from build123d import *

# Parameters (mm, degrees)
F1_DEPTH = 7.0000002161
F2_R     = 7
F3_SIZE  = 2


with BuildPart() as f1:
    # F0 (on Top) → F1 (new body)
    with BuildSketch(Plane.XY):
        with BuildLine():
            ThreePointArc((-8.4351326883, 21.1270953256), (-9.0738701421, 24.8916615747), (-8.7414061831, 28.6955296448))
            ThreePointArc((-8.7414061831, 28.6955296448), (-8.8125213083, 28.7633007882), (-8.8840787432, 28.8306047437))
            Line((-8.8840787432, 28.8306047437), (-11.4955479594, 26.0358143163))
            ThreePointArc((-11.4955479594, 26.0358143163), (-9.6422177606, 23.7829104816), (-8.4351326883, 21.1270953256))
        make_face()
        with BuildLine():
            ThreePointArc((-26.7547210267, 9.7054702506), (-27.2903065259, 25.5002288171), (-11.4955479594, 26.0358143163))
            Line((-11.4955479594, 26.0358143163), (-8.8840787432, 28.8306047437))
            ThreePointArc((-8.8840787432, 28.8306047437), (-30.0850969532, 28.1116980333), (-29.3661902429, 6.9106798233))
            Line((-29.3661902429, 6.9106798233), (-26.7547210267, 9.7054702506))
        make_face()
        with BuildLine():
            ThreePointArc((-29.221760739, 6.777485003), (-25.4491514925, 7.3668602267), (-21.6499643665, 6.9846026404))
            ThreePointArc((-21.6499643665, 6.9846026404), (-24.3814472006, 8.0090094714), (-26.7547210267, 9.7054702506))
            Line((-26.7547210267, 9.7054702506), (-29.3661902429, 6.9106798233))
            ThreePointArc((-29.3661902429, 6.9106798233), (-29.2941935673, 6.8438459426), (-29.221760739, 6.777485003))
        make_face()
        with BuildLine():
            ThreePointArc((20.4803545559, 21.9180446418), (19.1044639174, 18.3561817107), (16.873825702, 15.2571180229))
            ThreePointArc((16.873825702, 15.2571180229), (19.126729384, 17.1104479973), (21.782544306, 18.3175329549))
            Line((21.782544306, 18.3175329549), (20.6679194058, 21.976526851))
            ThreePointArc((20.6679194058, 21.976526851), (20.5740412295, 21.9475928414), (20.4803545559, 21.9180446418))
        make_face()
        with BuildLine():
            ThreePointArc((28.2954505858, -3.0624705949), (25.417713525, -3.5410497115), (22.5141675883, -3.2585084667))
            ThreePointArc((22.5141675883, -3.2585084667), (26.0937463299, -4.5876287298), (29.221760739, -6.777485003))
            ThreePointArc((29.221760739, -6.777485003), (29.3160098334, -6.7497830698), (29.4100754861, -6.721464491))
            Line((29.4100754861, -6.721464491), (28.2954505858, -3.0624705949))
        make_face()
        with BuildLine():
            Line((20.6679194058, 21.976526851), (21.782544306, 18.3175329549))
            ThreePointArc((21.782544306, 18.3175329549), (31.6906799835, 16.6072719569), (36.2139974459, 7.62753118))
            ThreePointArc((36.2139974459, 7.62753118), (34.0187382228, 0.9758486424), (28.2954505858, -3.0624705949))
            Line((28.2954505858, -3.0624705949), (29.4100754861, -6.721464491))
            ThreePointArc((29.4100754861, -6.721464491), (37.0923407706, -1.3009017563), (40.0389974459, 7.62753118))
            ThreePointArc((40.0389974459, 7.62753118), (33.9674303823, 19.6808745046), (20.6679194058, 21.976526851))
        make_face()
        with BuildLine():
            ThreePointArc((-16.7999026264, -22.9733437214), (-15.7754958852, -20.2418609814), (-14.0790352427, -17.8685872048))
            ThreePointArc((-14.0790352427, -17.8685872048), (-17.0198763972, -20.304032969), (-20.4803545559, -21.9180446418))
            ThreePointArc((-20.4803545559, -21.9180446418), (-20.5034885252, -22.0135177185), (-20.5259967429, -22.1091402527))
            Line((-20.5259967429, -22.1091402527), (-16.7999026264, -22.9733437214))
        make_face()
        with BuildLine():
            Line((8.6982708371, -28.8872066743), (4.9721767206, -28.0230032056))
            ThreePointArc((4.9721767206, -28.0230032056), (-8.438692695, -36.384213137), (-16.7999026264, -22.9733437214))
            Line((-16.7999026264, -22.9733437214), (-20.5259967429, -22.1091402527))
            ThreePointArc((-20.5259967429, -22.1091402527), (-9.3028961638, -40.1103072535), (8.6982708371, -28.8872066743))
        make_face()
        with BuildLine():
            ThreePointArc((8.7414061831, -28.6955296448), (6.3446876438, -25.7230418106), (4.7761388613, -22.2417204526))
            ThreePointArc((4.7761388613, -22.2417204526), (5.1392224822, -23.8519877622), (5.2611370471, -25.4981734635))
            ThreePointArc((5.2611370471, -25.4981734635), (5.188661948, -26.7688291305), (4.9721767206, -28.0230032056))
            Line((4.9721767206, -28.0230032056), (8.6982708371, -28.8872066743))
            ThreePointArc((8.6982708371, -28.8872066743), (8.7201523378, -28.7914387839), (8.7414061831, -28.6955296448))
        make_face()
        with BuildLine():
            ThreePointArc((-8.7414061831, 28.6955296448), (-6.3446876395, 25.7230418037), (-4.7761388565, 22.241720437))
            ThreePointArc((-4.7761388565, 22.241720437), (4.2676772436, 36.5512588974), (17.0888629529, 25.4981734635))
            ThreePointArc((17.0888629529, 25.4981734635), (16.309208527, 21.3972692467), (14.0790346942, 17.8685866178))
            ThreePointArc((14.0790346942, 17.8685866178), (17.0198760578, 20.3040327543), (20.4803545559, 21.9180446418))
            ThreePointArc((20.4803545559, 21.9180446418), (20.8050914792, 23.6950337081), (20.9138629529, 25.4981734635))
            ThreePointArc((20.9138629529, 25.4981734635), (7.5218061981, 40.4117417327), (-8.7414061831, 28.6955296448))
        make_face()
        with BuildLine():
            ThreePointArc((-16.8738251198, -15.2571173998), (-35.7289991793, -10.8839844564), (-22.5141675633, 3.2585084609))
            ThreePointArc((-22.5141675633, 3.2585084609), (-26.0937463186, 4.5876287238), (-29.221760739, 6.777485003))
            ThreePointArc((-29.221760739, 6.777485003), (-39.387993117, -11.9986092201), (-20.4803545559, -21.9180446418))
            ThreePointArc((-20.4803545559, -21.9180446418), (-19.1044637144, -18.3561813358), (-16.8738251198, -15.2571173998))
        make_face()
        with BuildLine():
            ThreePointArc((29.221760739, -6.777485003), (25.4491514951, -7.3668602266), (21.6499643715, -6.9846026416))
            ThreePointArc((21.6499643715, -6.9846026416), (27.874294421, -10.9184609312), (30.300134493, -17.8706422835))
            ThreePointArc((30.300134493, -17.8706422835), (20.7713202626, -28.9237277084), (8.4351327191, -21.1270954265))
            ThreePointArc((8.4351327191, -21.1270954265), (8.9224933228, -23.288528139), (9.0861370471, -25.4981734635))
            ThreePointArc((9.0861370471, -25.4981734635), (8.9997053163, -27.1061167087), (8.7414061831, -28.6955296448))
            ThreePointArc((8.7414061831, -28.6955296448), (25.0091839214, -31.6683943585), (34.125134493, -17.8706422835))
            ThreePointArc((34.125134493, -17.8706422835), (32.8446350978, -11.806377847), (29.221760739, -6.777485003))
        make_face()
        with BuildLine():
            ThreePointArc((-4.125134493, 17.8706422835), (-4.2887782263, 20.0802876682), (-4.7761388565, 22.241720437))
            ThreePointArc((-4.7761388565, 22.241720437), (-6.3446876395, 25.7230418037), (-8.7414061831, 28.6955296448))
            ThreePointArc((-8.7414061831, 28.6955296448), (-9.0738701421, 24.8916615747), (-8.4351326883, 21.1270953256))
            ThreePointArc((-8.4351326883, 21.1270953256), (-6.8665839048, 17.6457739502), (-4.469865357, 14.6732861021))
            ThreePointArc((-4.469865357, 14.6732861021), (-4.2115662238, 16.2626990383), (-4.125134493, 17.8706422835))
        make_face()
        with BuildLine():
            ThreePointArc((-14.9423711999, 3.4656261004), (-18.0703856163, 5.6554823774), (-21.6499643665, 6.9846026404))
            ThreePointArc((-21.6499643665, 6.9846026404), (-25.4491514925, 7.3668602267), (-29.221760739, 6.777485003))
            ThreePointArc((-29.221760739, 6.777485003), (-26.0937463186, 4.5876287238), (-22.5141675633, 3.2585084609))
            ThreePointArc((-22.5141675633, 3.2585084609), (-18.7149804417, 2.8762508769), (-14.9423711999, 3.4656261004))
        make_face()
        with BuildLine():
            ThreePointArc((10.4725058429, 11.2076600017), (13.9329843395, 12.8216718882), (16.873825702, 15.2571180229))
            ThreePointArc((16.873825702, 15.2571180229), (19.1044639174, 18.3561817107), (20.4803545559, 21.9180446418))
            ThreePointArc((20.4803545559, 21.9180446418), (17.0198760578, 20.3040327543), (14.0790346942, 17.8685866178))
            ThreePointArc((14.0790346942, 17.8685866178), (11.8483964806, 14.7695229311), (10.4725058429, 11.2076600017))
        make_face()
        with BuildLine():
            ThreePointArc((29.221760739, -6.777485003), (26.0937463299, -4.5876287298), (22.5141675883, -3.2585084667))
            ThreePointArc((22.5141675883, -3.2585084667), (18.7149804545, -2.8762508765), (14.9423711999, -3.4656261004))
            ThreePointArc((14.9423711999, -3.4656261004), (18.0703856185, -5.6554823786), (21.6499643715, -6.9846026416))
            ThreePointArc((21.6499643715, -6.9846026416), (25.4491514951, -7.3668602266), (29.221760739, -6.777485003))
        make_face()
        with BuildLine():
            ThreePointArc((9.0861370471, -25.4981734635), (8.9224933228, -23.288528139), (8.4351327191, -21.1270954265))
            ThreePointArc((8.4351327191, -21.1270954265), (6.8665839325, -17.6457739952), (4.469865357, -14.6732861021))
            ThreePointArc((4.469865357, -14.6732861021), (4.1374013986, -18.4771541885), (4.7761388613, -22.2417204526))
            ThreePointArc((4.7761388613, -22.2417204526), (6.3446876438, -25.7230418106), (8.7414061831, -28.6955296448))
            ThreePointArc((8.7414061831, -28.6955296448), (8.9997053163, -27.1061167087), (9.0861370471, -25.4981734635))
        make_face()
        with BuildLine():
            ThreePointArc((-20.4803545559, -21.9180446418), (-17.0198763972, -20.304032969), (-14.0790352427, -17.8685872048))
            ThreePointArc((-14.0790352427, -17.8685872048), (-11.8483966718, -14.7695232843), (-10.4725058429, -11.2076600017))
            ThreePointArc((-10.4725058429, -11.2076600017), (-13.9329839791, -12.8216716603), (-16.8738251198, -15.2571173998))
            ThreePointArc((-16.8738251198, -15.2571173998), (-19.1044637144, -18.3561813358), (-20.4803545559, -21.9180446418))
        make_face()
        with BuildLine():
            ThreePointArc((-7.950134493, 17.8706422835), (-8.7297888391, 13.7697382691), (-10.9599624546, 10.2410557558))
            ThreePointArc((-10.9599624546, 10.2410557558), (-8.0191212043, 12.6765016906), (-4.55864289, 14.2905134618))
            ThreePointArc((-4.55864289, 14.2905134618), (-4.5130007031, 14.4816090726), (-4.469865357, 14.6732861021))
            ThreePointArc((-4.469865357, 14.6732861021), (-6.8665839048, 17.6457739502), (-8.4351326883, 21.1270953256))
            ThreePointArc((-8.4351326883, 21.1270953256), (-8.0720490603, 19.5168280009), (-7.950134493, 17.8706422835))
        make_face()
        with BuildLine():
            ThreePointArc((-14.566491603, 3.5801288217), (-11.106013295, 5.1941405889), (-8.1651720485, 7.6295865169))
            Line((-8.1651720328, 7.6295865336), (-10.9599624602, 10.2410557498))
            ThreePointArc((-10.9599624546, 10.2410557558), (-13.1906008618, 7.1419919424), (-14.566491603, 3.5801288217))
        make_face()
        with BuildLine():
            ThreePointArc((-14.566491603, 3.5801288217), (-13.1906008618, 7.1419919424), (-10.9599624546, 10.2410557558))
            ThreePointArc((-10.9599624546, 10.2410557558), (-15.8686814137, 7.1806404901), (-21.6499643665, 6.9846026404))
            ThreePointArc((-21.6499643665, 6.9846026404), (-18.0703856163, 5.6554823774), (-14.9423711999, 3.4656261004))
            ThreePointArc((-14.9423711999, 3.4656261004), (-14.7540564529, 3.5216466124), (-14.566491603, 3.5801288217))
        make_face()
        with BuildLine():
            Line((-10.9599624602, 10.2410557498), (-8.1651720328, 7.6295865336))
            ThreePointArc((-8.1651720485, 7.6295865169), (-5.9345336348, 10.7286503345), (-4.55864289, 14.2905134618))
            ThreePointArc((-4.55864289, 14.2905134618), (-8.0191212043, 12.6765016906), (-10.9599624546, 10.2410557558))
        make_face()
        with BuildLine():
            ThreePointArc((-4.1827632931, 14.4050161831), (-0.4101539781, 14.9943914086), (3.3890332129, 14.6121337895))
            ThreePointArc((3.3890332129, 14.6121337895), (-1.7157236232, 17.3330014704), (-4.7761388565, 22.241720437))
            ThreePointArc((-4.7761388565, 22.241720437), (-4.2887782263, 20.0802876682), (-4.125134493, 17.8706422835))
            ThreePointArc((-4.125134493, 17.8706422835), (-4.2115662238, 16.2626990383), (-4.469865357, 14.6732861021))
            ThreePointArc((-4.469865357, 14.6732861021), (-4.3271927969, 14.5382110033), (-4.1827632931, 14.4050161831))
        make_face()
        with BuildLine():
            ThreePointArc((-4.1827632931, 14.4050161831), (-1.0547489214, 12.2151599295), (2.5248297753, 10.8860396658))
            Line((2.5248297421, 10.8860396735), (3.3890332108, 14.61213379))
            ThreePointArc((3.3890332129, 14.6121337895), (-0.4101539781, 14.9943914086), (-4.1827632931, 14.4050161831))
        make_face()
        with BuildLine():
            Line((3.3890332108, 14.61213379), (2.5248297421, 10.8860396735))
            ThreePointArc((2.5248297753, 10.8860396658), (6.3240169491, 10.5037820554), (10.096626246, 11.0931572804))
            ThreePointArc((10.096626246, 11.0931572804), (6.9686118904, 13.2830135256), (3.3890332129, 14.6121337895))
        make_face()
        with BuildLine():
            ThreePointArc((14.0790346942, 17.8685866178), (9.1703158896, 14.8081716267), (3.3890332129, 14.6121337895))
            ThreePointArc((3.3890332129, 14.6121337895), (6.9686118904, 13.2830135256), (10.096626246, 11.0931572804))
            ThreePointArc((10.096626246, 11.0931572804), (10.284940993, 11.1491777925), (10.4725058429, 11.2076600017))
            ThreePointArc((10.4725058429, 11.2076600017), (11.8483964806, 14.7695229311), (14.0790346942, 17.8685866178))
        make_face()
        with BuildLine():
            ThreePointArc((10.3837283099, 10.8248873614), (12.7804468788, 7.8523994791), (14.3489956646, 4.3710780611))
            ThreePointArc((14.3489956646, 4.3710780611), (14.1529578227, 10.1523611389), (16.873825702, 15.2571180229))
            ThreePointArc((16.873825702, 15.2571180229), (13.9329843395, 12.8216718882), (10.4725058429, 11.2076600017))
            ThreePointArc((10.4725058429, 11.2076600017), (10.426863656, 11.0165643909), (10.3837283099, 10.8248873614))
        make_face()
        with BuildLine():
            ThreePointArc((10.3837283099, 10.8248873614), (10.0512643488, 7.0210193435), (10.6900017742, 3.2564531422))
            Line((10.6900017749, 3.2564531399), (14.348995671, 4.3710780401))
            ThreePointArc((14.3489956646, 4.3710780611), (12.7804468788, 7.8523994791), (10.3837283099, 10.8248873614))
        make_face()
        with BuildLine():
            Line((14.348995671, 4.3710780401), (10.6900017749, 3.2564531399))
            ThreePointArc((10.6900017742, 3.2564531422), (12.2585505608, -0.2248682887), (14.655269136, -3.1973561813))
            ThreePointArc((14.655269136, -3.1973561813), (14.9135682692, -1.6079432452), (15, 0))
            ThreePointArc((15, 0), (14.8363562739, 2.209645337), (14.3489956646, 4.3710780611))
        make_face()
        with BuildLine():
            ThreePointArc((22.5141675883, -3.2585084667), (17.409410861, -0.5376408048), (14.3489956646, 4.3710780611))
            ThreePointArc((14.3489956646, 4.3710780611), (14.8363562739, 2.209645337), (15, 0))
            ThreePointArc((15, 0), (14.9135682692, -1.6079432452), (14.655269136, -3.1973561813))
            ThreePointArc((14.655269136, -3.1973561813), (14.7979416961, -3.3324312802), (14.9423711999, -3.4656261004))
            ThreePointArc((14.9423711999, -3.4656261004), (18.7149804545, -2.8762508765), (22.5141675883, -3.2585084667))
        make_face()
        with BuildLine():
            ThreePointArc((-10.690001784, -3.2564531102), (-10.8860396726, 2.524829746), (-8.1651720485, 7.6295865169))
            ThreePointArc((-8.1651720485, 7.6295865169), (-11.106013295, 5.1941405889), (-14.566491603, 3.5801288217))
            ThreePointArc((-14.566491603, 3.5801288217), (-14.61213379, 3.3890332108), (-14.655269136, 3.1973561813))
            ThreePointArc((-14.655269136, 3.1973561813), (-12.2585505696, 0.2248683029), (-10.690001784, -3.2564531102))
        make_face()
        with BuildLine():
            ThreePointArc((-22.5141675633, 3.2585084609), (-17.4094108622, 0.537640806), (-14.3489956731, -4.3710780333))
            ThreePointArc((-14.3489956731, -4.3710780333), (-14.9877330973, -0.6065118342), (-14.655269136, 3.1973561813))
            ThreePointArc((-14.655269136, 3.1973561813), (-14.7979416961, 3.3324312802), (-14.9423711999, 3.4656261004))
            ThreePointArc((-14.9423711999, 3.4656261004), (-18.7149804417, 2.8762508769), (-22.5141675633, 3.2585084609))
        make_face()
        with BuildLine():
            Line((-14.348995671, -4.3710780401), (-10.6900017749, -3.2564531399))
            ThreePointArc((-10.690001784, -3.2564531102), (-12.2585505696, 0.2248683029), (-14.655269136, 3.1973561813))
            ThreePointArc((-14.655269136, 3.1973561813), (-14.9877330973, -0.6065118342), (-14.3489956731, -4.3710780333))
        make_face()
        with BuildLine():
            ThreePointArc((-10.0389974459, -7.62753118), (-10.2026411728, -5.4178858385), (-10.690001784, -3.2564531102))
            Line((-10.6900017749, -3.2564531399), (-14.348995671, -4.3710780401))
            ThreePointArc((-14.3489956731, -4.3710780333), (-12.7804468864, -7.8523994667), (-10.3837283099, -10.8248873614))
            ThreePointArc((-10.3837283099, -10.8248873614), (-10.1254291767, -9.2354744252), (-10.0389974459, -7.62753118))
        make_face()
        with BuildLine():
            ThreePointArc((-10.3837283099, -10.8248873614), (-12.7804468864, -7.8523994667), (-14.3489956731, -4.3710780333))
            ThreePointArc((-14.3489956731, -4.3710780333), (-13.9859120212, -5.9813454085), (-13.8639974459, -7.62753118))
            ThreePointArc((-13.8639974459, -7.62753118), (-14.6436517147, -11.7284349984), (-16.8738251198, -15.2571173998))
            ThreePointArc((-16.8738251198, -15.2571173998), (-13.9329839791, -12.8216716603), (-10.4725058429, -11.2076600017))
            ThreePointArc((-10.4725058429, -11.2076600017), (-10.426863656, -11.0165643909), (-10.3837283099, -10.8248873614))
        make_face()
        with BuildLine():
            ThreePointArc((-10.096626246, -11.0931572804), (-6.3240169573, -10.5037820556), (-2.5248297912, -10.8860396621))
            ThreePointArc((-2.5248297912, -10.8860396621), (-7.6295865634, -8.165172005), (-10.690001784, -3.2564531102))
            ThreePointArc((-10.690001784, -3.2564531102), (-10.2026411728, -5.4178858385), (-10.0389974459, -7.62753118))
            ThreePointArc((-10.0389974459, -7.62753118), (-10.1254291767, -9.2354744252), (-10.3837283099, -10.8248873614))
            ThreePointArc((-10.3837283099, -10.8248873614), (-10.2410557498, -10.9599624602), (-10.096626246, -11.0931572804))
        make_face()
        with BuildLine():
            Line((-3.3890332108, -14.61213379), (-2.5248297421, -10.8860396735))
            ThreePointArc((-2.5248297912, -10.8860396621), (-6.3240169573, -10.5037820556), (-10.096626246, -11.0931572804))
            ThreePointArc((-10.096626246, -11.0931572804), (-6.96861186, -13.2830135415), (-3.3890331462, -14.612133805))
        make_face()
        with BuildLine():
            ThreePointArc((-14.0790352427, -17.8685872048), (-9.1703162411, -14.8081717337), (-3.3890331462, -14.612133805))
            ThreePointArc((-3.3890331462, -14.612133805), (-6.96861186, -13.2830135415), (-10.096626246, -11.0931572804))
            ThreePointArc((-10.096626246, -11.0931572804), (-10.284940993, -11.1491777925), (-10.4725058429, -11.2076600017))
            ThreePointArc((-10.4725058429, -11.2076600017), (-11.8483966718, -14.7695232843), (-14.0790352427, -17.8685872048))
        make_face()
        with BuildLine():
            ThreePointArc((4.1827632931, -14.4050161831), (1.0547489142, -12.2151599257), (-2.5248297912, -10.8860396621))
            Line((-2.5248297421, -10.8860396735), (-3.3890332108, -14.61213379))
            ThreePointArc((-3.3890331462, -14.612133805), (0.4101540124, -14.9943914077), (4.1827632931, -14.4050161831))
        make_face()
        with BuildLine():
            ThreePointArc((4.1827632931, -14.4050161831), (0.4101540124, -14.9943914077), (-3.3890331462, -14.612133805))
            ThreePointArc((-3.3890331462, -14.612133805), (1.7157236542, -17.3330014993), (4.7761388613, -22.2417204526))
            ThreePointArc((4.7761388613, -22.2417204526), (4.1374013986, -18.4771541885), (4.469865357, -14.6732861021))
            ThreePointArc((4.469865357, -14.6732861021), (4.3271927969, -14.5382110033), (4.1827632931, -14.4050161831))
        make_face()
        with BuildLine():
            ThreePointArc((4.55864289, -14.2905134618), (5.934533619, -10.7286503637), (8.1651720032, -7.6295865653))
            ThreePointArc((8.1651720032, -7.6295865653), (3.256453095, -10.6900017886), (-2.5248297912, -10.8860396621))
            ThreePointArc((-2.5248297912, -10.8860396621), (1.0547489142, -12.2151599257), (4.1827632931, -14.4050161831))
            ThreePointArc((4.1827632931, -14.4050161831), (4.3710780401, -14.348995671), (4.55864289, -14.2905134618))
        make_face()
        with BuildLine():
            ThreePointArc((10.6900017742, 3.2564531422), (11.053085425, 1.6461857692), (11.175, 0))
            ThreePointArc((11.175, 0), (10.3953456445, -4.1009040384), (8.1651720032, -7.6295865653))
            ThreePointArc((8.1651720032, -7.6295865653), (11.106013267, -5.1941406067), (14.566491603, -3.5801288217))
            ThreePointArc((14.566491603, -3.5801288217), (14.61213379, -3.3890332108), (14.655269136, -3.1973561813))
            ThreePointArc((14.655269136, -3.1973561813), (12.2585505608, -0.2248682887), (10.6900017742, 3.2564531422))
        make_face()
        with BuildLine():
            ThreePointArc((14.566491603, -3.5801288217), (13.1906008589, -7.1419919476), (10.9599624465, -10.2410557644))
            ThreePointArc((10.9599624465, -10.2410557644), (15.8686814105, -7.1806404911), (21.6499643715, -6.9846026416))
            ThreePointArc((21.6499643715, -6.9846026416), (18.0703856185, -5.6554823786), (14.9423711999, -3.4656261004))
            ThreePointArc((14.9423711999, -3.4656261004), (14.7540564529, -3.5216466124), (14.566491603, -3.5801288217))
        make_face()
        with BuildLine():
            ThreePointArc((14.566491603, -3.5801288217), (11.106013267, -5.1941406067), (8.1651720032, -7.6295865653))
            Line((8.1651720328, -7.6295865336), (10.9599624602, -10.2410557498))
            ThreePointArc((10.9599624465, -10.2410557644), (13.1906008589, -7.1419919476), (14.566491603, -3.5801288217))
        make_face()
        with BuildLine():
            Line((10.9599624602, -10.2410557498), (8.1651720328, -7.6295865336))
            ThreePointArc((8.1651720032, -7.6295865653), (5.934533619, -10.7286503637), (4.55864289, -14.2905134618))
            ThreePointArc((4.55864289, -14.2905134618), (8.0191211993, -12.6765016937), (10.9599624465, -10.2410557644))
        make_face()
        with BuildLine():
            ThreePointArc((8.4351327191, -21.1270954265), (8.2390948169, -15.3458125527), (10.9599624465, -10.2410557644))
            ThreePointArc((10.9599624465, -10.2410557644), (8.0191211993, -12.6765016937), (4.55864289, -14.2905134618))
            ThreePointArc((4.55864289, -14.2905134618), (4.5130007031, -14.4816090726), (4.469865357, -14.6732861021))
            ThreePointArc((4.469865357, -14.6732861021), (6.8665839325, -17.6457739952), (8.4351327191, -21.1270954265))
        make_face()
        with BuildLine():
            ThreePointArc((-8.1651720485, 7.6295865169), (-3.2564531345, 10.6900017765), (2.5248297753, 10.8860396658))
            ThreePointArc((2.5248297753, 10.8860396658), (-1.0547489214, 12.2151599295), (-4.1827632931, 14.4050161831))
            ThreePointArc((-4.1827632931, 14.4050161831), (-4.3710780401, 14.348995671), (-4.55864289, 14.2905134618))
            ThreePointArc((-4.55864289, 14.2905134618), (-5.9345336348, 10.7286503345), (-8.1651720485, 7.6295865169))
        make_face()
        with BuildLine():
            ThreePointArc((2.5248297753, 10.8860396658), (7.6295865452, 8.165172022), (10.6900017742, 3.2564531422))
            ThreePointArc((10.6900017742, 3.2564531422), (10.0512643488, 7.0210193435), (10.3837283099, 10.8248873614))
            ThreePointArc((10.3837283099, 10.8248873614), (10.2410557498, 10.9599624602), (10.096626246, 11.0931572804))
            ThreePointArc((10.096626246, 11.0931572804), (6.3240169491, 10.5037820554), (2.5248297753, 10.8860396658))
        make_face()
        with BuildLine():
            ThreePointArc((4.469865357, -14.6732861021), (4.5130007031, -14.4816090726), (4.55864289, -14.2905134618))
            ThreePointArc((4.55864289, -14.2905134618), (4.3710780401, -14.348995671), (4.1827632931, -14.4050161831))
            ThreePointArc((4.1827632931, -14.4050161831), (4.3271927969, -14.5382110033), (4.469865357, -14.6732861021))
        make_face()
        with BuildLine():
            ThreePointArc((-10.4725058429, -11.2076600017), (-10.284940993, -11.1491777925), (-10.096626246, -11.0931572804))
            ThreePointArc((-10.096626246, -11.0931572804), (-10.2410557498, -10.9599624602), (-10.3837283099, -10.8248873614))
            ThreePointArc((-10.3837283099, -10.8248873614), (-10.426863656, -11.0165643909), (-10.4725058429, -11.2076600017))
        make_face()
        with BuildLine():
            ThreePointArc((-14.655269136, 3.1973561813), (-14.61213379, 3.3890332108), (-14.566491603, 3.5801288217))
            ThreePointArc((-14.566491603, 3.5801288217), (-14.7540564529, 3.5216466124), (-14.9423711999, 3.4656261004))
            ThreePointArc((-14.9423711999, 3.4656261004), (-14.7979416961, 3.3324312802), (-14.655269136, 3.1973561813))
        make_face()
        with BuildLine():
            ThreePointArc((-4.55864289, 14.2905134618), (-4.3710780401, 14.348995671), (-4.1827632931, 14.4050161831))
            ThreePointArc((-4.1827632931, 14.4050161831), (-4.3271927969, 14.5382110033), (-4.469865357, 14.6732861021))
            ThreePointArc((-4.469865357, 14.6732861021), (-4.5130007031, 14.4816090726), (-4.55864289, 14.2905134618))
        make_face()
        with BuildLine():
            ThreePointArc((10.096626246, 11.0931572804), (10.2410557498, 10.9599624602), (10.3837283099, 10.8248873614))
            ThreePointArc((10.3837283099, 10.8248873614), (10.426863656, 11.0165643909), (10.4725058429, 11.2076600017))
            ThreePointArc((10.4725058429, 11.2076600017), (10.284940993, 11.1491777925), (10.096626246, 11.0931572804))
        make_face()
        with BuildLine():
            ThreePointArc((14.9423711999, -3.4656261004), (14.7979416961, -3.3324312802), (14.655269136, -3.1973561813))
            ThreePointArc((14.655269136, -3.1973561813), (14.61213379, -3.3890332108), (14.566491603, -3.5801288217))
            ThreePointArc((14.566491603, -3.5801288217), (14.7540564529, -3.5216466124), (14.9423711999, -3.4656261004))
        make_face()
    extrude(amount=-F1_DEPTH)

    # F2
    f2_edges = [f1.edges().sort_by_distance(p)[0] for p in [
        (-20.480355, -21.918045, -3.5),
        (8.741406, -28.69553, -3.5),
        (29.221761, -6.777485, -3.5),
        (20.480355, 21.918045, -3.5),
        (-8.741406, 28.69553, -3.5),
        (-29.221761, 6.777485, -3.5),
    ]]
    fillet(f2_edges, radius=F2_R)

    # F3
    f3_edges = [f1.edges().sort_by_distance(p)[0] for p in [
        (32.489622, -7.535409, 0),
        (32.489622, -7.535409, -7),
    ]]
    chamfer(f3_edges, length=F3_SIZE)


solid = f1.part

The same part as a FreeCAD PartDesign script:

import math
import FreeCAD as App
import Part
import Sketcher
Q = App.Units.Quantity


def edges_at(feature, points):
    """Names of the edges that pass closest to the given points."""
    edges = feature.Shape.Edges
    near = lambda p: min(range(len(edges)), key=lambda i: edges[i].distToShape(Part.Vertex(*p))[0])
    return sorted({f"Edge{near(p) + 1}" for p in points})

doc = App.newDocument("Part")
body = doc.addObject("PartDesign::Body", "Body")

sketch1 = doc.addObject("Sketcher::SketchObject", "Sketch")
body.addObject(sketch1)
sketch1.AttachmentSupport = (doc.XY_Plane, [""])
sketch1.MapMode = "FlatFace"
sketch1.addGeometry([
    Part.ArcOfCircle(Part.Circle(App.Vector(-25.038997, -7.627531, 0), App.Vector(0, 0, 1), 15), math.radians(106.191634), math.radians(287.69257)),
    Part.ArcOfCircle(Part.Circle(App.Vector(-5.913864, -25.498173, 0), App.Vector(0, 0, 1), 14.999999), math.radians(166.191634), math.radians(166.942102)),
    Part.ArcOfCircle(Part.Circle(App.Vector(-5.913863, -25.498173, 0), App.Vector(0, 0, 1), 15), math.radians(166.942102), math.radians(346.942102)),
    Part.ArcOfCircle(Part.Circle(App.Vector(-5.913864, -25.498173, 0), App.Vector(0, 0, 1), 15.000001), math.radians(-13.057898), math.radians(-12.30743)),
    Part.ArcOfCircle(Part.Circle(App.Vector(19.125134, -17.870642, 0), App.Vector(0, 0, 1), 15), math.radians(-133.808366), math.radians(0)),
    Part.ArcOfCircle(Part.Circle(App.Vector(19.125134, -17.870642, 0), App.Vector(0, 0, 1), 15), math.radians(0), math.radians(47.69257)),
    Part.ArcOfCircle(Part.Circle(App.Vector(25.038998, 7.62753, 0), App.Vector(0, 0, 1), 14.999998), math.radians(-73.808366), math.radians(-73.057898)),
    Part.ArcOfCircle(Part.Circle(App.Vector(25.038997, 7.627531, 0), App.Vector(0, 0, 1), 15), math.radians(-73.057898), math.radians(0)),
    Part.ArcOfCircle(Part.Circle(App.Vector(25.038997, 7.627531, 0), App.Vector(0, 0, 1), 15), math.radians(0), math.radians(106.942102)),
    Part.ArcOfCircle(Part.Circle(App.Vector(25.038997, 7.627533, 0), App.Vector(0, 0, 1), 14.999999), math.radians(106.942102), math.radians(107.69257)),
    Part.ArcOfCircle(Part.Circle(App.Vector(5.913863, 25.498173, 0), App.Vector(0, 0, 1), 15), math.radians(-13.808366), math.radians(0)),
    Part.ArcOfCircle(Part.Circle(App.Vector(5.913863, 25.498173, 0), App.Vector(0, 0, 1), 15), math.radians(0), math.radians(167.69257)),
    Part.ArcOfCircle(Part.Circle(App.Vector(-19.125136, 17.87064, 0), App.Vector(0, 0, 1), 15.000003), math.radians(46.191634), math.radians(46.942102)),
    Part.ArcOfCircle(Part.Circle(App.Vector(-19.125134, 17.870642, 0), App.Vector(0, 0, 1), 15), math.radians(46.942102), math.radians(226.942102)),
    Part.ArcOfCircle(Part.Circle(App.Vector(-19.125133, 17.870644, 0), App.Vector(0, 0, 1), 15.000002), math.radians(-133.057898), math.radians(-132.30743)),
    Part.ArcOfCircle(Part.Circle(App.Vector(-5.913863, -25.498173, 0), App.Vector(0, 0, 1), 11.175), math.radians(0), math.radians(16.942101)),
    Part.ArcOfCircle(Part.Circle(App.Vector(-5.913863, -25.498173, 0), App.Vector(0, 0, 1), 11.175), math.radians(-13.057898), math.radians(0)),
    Part.ArcOfCircle(Part.Circle(App.Vector(-5.913863, -25.498173, 0), App.Vector(0, 0, 1), 11.175), math.radians(166.942102), math.radians(346.942102)),
    Part.ArcOfCircle(Part.Circle(App.Vector(-5.913863, -25.498173, 0), App.Vector(0, 0, 1), 11.175), math.radians(136.942104), math.radians(166.942102)),
    Part.ArcOfCircle(Part.Circle(App.Vector(-5.913863, -25.498173, 0), App.Vector(0, 0, 1), 11.175), math.radians(76.942102), math.radians(136.942104)),
    Part.ArcOfCircle(Part.Circle(App.Vector(-5.913863, -25.498173, 0), App.Vector(0, 0, 1), 11.175), math.radians(16.942102), math.radians(76.942102)),
    Part.ArcOfCircle(Part.Circle(App.Vector(-25.038997, -7.627531, 0), App.Vector(0, 0, 1), 11.175), math.radians(16.942102), math.radians(316.942104)),
    Part.ArcOfCircle(Part.Circle(App.Vector(-25.038997, -7.627531, 0), App.Vector(0, 0, 1), 11.175), math.radians(0), math.radians(16.942102)),
    Part.ArcOfCircle(Part.Circle(App.Vector(-25.038997, -7.627531, 0), App.Vector(0, 0, 1), 11.175), math.radians(-43.057896), math.radians(0)),
    Part.ArcOfCircle(Part.Circle(App.Vector(19.125134, -17.870642, 0), App.Vector(0, 0, 1), 11.175), math.radians(0), math.radians(136.942102)),
    Part.ArcOfCircle(Part.Circle(App.Vector(19.125134, -17.870642, 0), App.Vector(0, 0, 1), 11.175), math.radians(-163.057898), math.radians(0)),
    Part.ArcOfCircle(Part.Circle(App.Vector(19.125134, -17.870642, 0), App.Vector(0, 0, 1), 11.175), math.radians(136.942102), math.radians(196.942102)),
    Part.ArcOfCircle(Part.Circle(App.Vector(-19.125134, 17.870642, 0), App.Vector(0, 0, 1), 11.175), math.radians(-43.057898), math.radians(0)),
    Part.ArcOfCircle(Part.Circle(App.Vector(-19.125134, 17.870642, 0), App.Vector(0, 0, 1), 11.175), math.radians(-103.057898), math.radians(-43.057898)),
    Part.ArcOfCircle(Part.Circle(App.Vector(-19.125134, 17.870642, 0), App.Vector(0, 0, 1), 11.175), math.radians(-133.057898), math.radians(-103.057898)),
    Part.ArcOfCircle(Part.Circle(App.Vector(-19.125134, 17.870642, 0), App.Vector(0, 0, 1), 11.175), math.radians(46.942102), math.radians(226.942102)),
    Part.ArcOfCircle(Part.Circle(App.Vector(-19.125134, 17.870642, 0), App.Vector(0, 0, 1), 11.175), math.radians(16.942102), math.radians(46.942102)),
    Part.ArcOfCircle(Part.Circle(App.Vector(-19.125134, 17.870642, 0), App.Vector(0, 0, 1), 11.175), math.radians(0), math.radians(16.942102)),
    Part.ArcOfCircle(Part.Circle(App.Vector(0, 0, 0), App.Vector(0, 0, 1), 11.175), math.radians(-43.057898), math.radians(0)),
    Part.ArcOfCircle(Part.Circle(App.Vector(0, 0, 0), App.Vector(0, 0, 1), 11.175), math.radians(-103.057898), math.radians(-43.057898)),
    Part.ArcOfCircle(Part.Circle(App.Vector(0, 0, 0), App.Vector(0, 0, 1), 11.175), math.radians(-163.057898), math.radians(-103.057898)),
    Part.ArcOfCircle(Part.Circle(App.Vector(0, 0, 0), App.Vector(0, 0, 1), 11.175), math.radians(136.942102), math.radians(196.942102)),
    Part.ArcOfCircle(Part.Circle(App.Vector(0, 0, 0), App.Vector(0, 0, 1), 11.175), math.radians(76.942102), math.radians(136.942102)),
    Part.ArcOfCircle(Part.Circle(App.Vector(0, 0, 0), App.Vector(0, 0, 1), 11.175), math.radians(16.942102), math.radians(76.942102)),
    Part.ArcOfCircle(Part.Circle(App.Vector(0, 0, 0), App.Vector(0, 0, 1), 11.175), math.radians(0), math.radians(16.942102)),
    Part.ArcOfCircle(Part.Circle(App.Vector(25.038997, 7.627531, 0), App.Vector(0, 0, 1), 11.175), math.radians(136.9421), math.radians(196.942102)),
    Part.ArcOfCircle(Part.Circle(App.Vector(25.038997, 7.627531, 0), App.Vector(0, 0, 1), 11.175), math.radians(0), math.radians(136.9421)),
    Part.ArcOfCircle(Part.Circle(App.Vector(25.038997, 7.627531, 0), App.Vector(0, 0, 1), 11.175), math.radians(-73.057898), math.radians(0)),
    Part.ArcOfCircle(Part.Circle(App.Vector(25.038997, 7.627531, 0), App.Vector(0, 0, 1), 11.175), math.radians(-103.057898), math.radians(-73.057898)),
    Part.ArcOfCircle(Part.Circle(App.Vector(25.038997, 7.627531, 0), App.Vector(0, 0, 1), 11.175), math.radians(-163.057898), math.radians(-103.057898)),
    Part.ArcOfCircle(Part.Circle(App.Vector(5.913863, 25.498173, 0), App.Vector(0, 0, 1), 11.175), math.radians(-163.057898), math.radians(-103.057898)),
    Part.ArcOfCircle(Part.Circle(App.Vector(5.913863, 25.498173, 0), App.Vector(0, 0, 1), 11.175), math.radians(-43.0579), math.radians(196.942102)),
    Part.ArcOfCircle(Part.Circle(App.Vector(5.913863, 25.498173, 0), App.Vector(0, 0, 1), 11.175), math.radians(-103.057898), math.radians(-43.0579)),
], False)
sketch1.addConstraint([
    Sketcher.Constraint("Coincident", 0, 2, 1, 1),
    Sketcher.Constraint("Tangent", 1, 2, 2, 1),
    Sketcher.Constraint("Tangent", 2, 2, 3, 1),
    Sketcher.Constraint("Coincident", 3, 2, 4, 1),
    Sketcher.Constraint("Tangent", 4, 2, 5, 1),
    Sketcher.Constraint("Coincident", 5, 2, 6, 1),
    Sketcher.Constraint("Tangent", 6, 2, 7, 1),
    Sketcher.Constraint("Tangent", 7, 2, 8, 1),
    Sketcher.Constraint("Tangent", 8, 2, 9, 1),
    Sketcher.Constraint("Coincident", 9, 2, 10, 1),
    Sketcher.Constraint("Tangent", 10, 2, 11, 1),
    Sketcher.Constraint("Coincident", 11, 2, 12, 1),
    Sketcher.Constraint("Tangent", 12, 2, 13, 1),
    Sketcher.Constraint("Tangent", 13, 2, 14, 1),
    Sketcher.Constraint("Coincident", 14, 2, 0, 1),
    Sketcher.Constraint("Tangent", 15, 1, 16, 2),
    Sketcher.Constraint("Tangent", 16, 1, 17, 2),
    Sketcher.Constraint("Tangent", 17, 1, 18, 2),
    Sketcher.Constraint("Tangent", 18, 1, 19, 2),
    Sketcher.Constraint("Tangent", 19, 1, 20, 2),
    Sketcher.Constraint("Tangent", 20, 1, 15, 2),
    Sketcher.Constraint("Tangent", 21, 1, 22, 2),
    Sketcher.Constraint("Tangent", 22, 1, 23, 2),
    Sketcher.Constraint("Tangent", 23, 1, 21, 2),
    Sketcher.Constraint("Tangent", 24, 1, 25, 2),
    Sketcher.Constraint("Tangent", 25, 1, 26, 2),
    Sketcher.Constraint("Tangent", 26, 1, 24, 2),
    Sketcher.Constraint("Tangent", 27, 1, 28, 2),
    Sketcher.Constraint("Tangent", 28, 1, 29, 2),
    Sketcher.Constraint("Tangent", 29, 1, 30, 2),
    Sketcher.Constraint("Tangent", 30, 1, 31, 2),
    Sketcher.Constraint("Tangent", 31, 1, 32, 2),
    Sketcher.Constraint("Tangent", 32, 1, 27, 2),
    Sketcher.Constraint("Tangent", 33, 1, 34, 2),
    Sketcher.Constraint("Tangent", 34, 1, 35, 2),
    Sketcher.Constraint("Tangent", 35, 1, 36, 2),
    Sketcher.Constraint("Tangent", 36, 1, 37, 2),
    Sketcher.Constraint("Tangent", 37, 1, 38, 2),
    Sketcher.Constraint("Tangent", 38, 1, 39, 2),
    Sketcher.Constraint("Tangent", 39, 1, 33, 2),
    Sketcher.Constraint("Tangent", 40, 1, 41, 2),
    Sketcher.Constraint("Tangent", 41, 1, 42, 2),
    Sketcher.Constraint("Tangent", 42, 1, 43, 2),
    Sketcher.Constraint("Tangent", 43, 1, 44, 2),
    Sketcher.Constraint("Tangent", 44, 1, 40, 2),
    Sketcher.Constraint("Tangent", 45, 1, 46, 2),
    Sketcher.Constraint("Tangent", 46, 1, 47, 2),
    Sketcher.Constraint("Tangent", 47, 1, 45, 2),
    Sketcher.Constraint("Coincident", 33, 3, -1, 1),
    Sketcher.Constraint("Coincident", 35, 3, -1, 1),
    Sketcher.Constraint("Coincident", 37, 3, -1, 1),
    Sketcher.Constraint("Coincident", 8, 3, 6, 3),
    Sketcher.Constraint("Coincident", 15, 3, 1, 3),
    Sketcher.Constraint("Coincident", 17, 3, 1, 3),
    Sketcher.Constraint("Coincident", 21, 3, 0, 3),
    Sketcher.Constraint("Coincident", 24, 3, 4, 3),
    Sketcher.Constraint("Coincident", 27, 3, 12, 3),
    Sketcher.Constraint("Coincident", 29, 3, 12, 3),
    Sketcher.Constraint("Coincident", 40, 3, 6, 3),
    Sketcher.Constraint("Coincident", 42, 3, 6, 3),
    Sketcher.Constraint("Coincident", 45, 3, 10, 3),
    Sketcher.Constraint("Equal", 0, 1),
    Sketcher.Constraint("Equal", 1, 2),
    Sketcher.Constraint("Equal", 2, 3),
    Sketcher.Constraint("Equal", 3, 4),
    Sketcher.Constraint("Equal", 4, 5),
    Sketcher.Constraint("Equal", 5, 6),
    Sketcher.Constraint("Equal", 8, 9),
    Sketcher.Constraint("Equal", 9, 10),
    Sketcher.Constraint("Equal", 10, 11),
    Sketcher.Constraint("Equal", 3, 12),
    Sketcher.Constraint("Equal", 11, 13),
    Sketcher.Constraint("Equal", 13, 14),
    Sketcher.Constraint("Equal", 17, 18),
    Sketcher.Constraint("Equal", 20, 21),
    Sketcher.Constraint("Equal", 23, 24),
    Sketcher.Constraint("Equal", 26, 27),
    Sketcher.Constraint("Equal", 29, 30),
    Sketcher.Constraint("Equal", 32, 33),
    Sketcher.Constraint("Equal", 39, 40),
    Sketcher.Constraint("Equal", 44, 45),
    Sketcher.Constraint("Symmetric", 0, 3, 6, 3, -1, 1),
    Sketcher.Constraint("Symmetric", 1, 3, 10, 3, -1, 1),
    Sketcher.Constraint("Symmetric", 4, 3, 12, 3, -1, 1),
    Sketcher.Constraint("PointOnObject", 39, 1, -1),
    Sketcher.Constraint("Horizontal", 26, 3, 4, 2),
    Sketcher.Constraint("Horizontal", 44, 3, 7, 2),
    Sketcher.Constraint("Horizontal", 47, 3, 10, 2),
    Sketcher.Constraint("Horizontal", 20, 3, 15, 1),
    Sketcher.Constraint("Horizontal", 23, 3, 22, 1),
    Sketcher.Constraint("Horizontal", 4, 2, 24, 1),
    Sketcher.Constraint("Horizontal", 31, 3, 32, 1),
    Sketcher.Constraint("Horizontal", 7, 2, 41, 1),
    Sketcher.Constraint("Radius", 0, Q("15 mm")),
    Sketcher.Constraint("Radius", 15, Q("11.175 mm")),
    Sketcher.Constraint("DistanceX", 35, 1, -1, 1, Q("10.690002 mm")),
    Sketcher.Constraint("DistanceX", -1, 1, 38, 1, Q("10.690002 mm")),
    Sketcher.Constraint("DistanceY", 0, 3, -1, 1, Q("7.627531 mm")),
    Sketcher.Constraint("DistanceY", -1, 1, 12, 3, Q("17.87064 mm")),
    Sketcher.Constraint("DistanceY", 1, 2, -1, 1, Q("22.10914 mm")),
    Sketcher.Constraint("DistanceX", -1, 1, 2, 2, Q("8.698271 mm")),
    Sketcher.Constraint("DistanceY", 3, 2, -1, 1, Q("28.69553 mm")),
    Sketcher.Constraint("DistanceX", -1, 1, 5, 2, Q("29.221761 mm")),
    Sketcher.Constraint("DistanceX", -1, 1, 8, 2, Q("20.667919 mm")),
    Sketcher.Constraint("DistanceX", 12, 2, -1, 1, Q("8.884079 mm")),
    Sketcher.Constraint("DistanceX", 13, 2, -1, 1, Q("29.36619 mm")),
    Sketcher.Constraint("DistanceY", -1, 1, 13, 2, Q("6.91068 mm")),
    Sketcher.Constraint("DistanceX", -1, 1, 20, 1, Q("4.776139 mm")),
    Sketcher.Constraint("DistanceY", 20, 1, -1, 1, Q("22.24172 mm")),
    Sketcher.Constraint("DistanceY", 21, 1, -1, 1, Q("4.371078 mm")),
    Sketcher.Constraint("DistanceX", 29, 1, -1, 1, Q("26.754721 mm")),
    Sketcher.Constraint("DistanceX", 34, 1, -1, 1, Q("2.52483 mm")),
    Sketcher.Constraint("DistanceX", -1, 1, 37, 1, Q("2.52483 mm")),
    Sketcher.Constraint("DistanceY", -1, 1, 40, 1, Q("15.257118 mm")),
    Sketcher.Constraint("DistanceX", -1, 1, 42, 1, Q("28.295451 mm")),
    Sketcher.Constraint("DistanceY", 43, 1, -1, 1, Q("3.258508 mm")),
    Sketcher.Constraint("DistanceY", -1, 1, 44, 1, Q("4.371078 mm")),
    Sketcher.Constraint("DistanceX", 45, 1, -1, 1, Q("4.776139 mm")),
    Sketcher.Constraint("DistanceX", -1, 1, 6, 2, Q("29.410075 mm")),
    Sketcher.Constraint("DistanceX", -1, 1, 16, 1, Q("4.972177 mm")),
    Sketcher.Constraint("DistanceX", 17, 1, -1, 1, Q("16.799903 mm")),
    Sketcher.Constraint("DistanceX", 18, 1, -1, 1, Q("14.079035 mm")),
    Sketcher.Constraint("DistanceX", 19, 1, -1, 1, Q("3.389033 mm")),
    Sketcher.Constraint("DistanceX", 23, 1, -1, 1, Q("16.873825 mm")),
    Sketcher.Constraint("DistanceX", -1, 1, 25, 1, Q("8.435133 mm")),
    Sketcher.Constraint("DistanceX", -1, 1, 26, 1, Q("10.959962 mm")),
    Sketcher.Constraint("DistanceX", 27, 1, -1, 1, Q("10.959962 mm")),
    Sketcher.Constraint("DistanceX", 28, 1, -1, 1, Q("21.649964 mm")),
    Sketcher.Constraint("DistanceX", 30, 1, -1, 1, Q("11.495548 mm")),
    Sketcher.Constraint("DistanceX", 31, 1, -1, 1, Q("8.435133 mm")),
    Sketcher.Constraint("DistanceX", -1, 1, 33, 1, Q("8.165172 mm")),
    Sketcher.Constraint("DistanceX", 36, 1, -1, 1, Q("8.165172 mm")),
    Sketcher.Constraint("DistanceX", -1, 1, 46, 1, Q("14.079035 mm")),
    Sketcher.Constraint("DistanceX", -1, 1, 47, 1, Q("3.389033 mm")),
])
pad1 = doc.addObject("PartDesign::Pad", "Pad")
body.addObject(pad1)
pad1.Profile = sketch1
pad1.Length = 7
pad1.Reversed = True
doc.recompute()

fillet = doc.addObject("PartDesign::Fillet", "Fillet")
body.addObject(fillet)
fillet.Base = (pad1, edges_at(pad1, [
    (-20.48, -21.918, -3.5),
    (8.741, -28.696, -3.5),
    (29.222, -6.777, -3.5),
    (20.48, 21.918, -3.5),
    (-8.741, 28.696, -3.5),
    (-29.222, 6.777, -3.5),
]))
fillet.Radius = 7
doc.recompute()

chamfer = doc.addObject("PartDesign::Chamfer", "Chamfer")
body.addObject(chamfer)
chamfer.Base = (fillet, edges_at(fillet, [(32.49, -7.535, 0), (32.49, -7.535, -7)]))
chamfer.Size = 2

doc.recompute()
